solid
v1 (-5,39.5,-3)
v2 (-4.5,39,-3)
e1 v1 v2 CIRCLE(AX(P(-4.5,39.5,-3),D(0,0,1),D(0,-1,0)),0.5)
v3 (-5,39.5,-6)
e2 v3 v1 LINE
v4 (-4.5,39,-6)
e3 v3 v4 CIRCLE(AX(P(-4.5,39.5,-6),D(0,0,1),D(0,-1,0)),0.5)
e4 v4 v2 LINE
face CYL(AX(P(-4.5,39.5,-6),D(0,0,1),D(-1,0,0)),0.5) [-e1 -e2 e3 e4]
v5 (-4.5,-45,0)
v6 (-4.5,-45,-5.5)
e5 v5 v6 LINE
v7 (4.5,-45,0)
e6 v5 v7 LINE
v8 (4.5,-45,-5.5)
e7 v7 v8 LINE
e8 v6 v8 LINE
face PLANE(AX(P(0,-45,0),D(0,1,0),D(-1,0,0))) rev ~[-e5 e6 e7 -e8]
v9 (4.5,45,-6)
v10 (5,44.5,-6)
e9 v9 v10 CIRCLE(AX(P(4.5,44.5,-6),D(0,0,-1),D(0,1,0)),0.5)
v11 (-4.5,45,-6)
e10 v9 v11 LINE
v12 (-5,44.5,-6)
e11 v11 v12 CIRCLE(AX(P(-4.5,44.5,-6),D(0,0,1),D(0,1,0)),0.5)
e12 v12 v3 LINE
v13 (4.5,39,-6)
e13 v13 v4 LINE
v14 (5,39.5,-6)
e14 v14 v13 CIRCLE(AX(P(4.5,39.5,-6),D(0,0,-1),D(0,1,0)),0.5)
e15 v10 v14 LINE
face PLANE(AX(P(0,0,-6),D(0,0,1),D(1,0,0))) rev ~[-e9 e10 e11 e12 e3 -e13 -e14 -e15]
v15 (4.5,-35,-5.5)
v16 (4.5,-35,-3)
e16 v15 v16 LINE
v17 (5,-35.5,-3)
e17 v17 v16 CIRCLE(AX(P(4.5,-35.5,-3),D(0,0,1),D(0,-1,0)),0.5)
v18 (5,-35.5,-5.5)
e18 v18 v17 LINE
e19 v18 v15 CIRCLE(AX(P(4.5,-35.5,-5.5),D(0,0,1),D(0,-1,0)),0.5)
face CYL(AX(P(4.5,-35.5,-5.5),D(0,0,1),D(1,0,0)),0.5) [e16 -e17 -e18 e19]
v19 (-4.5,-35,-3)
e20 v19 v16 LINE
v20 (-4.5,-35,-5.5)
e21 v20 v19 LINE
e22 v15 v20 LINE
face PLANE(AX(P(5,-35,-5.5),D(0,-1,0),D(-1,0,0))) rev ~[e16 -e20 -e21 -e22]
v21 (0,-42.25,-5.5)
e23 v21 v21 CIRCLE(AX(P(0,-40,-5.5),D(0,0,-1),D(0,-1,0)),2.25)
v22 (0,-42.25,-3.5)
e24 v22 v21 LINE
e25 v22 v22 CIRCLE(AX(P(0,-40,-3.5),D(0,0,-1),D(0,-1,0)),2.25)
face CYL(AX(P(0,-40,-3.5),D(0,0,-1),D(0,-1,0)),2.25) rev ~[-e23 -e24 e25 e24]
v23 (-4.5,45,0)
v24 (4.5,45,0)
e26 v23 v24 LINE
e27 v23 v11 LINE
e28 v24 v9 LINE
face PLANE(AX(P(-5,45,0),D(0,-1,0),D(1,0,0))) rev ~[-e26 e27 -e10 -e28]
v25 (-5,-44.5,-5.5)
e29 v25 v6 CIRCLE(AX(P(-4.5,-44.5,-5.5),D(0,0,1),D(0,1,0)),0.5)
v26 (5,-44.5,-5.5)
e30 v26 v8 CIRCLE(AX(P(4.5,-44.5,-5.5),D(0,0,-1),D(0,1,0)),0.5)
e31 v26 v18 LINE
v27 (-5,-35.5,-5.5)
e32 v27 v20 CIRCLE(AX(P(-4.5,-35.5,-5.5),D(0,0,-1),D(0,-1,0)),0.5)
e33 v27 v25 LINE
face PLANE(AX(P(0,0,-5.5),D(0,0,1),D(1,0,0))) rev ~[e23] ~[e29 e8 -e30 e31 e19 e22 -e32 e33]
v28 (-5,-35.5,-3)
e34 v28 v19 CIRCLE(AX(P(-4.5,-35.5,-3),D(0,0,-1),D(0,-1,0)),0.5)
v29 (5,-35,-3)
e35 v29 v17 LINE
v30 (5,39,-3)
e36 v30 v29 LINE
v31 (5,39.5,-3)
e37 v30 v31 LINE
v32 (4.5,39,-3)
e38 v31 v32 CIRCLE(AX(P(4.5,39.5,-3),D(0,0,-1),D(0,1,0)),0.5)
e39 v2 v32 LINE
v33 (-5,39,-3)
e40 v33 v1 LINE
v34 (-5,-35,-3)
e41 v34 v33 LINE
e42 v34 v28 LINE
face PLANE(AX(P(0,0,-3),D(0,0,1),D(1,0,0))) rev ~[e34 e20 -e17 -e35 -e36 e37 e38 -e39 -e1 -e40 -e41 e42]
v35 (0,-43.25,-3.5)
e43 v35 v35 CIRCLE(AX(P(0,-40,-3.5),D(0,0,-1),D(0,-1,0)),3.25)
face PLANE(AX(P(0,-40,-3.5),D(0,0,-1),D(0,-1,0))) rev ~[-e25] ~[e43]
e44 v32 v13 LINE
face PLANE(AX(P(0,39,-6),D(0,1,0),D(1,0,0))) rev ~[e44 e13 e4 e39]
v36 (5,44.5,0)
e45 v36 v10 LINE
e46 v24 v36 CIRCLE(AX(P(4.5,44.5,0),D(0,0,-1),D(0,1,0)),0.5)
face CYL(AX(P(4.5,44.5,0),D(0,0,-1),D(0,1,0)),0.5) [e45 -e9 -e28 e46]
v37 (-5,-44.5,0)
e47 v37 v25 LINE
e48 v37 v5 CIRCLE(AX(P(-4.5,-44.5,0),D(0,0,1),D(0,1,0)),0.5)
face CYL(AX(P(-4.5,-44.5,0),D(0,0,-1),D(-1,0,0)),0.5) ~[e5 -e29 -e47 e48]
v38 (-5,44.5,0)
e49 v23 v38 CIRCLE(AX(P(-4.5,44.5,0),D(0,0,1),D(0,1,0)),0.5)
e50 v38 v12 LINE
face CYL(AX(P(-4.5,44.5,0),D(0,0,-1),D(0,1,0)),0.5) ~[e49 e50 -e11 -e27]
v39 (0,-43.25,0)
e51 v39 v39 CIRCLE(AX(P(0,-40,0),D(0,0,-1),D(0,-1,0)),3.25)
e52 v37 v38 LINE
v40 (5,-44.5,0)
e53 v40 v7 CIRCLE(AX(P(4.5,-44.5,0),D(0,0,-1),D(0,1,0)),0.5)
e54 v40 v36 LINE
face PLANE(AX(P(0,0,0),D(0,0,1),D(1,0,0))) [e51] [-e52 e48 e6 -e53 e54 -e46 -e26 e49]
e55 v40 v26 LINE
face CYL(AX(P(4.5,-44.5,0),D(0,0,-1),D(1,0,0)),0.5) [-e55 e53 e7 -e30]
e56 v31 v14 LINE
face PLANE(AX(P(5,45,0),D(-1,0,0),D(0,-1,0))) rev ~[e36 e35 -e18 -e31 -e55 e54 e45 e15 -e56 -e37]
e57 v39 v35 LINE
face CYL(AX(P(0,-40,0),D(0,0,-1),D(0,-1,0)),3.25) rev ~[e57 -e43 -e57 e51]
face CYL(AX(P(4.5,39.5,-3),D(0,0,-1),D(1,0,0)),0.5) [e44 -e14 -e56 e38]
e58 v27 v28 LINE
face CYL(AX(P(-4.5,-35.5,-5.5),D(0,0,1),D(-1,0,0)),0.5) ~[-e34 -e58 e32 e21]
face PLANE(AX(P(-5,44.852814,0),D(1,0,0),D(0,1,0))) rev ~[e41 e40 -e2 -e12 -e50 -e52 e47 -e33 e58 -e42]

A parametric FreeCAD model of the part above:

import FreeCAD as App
import Part
import Sketcher
from FreeCAD import Vector


def edges_at(feature, points):
    """Names of the edges that pass closest to the given points."""
    edges = feature.Shape.Edges
    near = lambda p: min(range(len(edges)), key=lambda i: edges[i].distToShape(Part.Vertex(*p))[0])
    return sorted({f"Edge{near(p) + 1}" for p in points})


def add_polygon(sketch, points):
    """Adds a closed chain of lines whose ends are joined by coincident constraints."""
    first, n = sketch.GeometryCount, len(points)
    for a, b in zip(points, points[1:] + points[:1]):
        sketch.addGeometry(Part.LineSegment(App.Vector(*a, 0), App.Vector(*b, 0)), False)
    for i in range(n):
        sketch.addConstraint(Sketcher.Constraint("Coincident", first + i, 2, first + (i + 1) % n, 1))

doc = App.newDocument("Part")
body = doc.addObject("PartDesign::Body", "Body")

# Sketch on XY plane
sketch1 = body.newObject("Sketcher::SketchObject", "Sketch")
sketch1.AttachmentSupport = (doc.getObject("XY_Plane"), [""])
sketch1.MapMode = "FlatFace"
add_polygon(sketch1, [(-5, 45), (-5, -45), (5, -45), (5, 45)])  # lines 0-3
sketch1.addConstraint([
    Sketcher.Constraint("Vertical", 0),
    Sketcher.Constraint("Horizontal", 1),
    Sketcher.Constraint("Vertical", 2),
    Sketcher.Constraint("Horizontal", 3),
    Sketcher.Constraint("Symmetric", 0, 2, 2, 2, -1, 1),
    Sketcher.Constraint("DistanceX", 1, 1, 1, 2, 10.0),
    Sketcher.Constraint("DistanceY", 0, 2, 0, 1, 90.0),
])
pad1 = body.newObject("PartDesign::Pad", "Pad")
pad1.Profile = sketch1
pad1.Length = 6
pad1.Reversed = True

# Sketch on XY plane
sketch2 = body.newObject("Sketcher::SketchObject", "Sketch001")
sketch2.AttachmentSupport = (doc.getObject("XY_Plane"), [""])
sketch2.MapMode = "FlatFace"
sketch2.AttachmentOffset = App.Placement(Vector(0, 0, -6), App.Rotation())
add_polygon(sketch2, [(-5, 39), (-5, -45), (5, -45), (5, 39)])  # lines 0-3
sketch2.addConstraint([
    Sketcher.Constraint("Vertical", 0),
    Sketcher.Constraint("Horizontal", 1),
    Sketcher.Constraint("Vertical", 2),
    Sketcher.Constraint("Horizontal", 3),
    Sketcher.Constraint("DistanceX", 1, 1, 1, 2, 10.0),
    Sketcher.Constraint("DistanceY", 0, 2, 0, 1, 84.0),
    Sketcher.Constraint("DistanceX", 0, 2, -1, 1, 5.0),
    Sketcher.Constraint("DistanceY", 0, 2, -1, 1, 45.0),
])
pocket1 = body.newObject("PartDesign::Pocket", "Pocket")
pocket1.Profile = sketch2
pocket1.Length = 0.5
pocket1.Reversed = True

# Sketch on XY plane
sketch3 = body.newObject("Sketcher::SketchObject", "Sketch002")
sketch3.AttachmentSupport = (doc.getObject("XY_Plane"), [""])
sketch3.MapMode = "FlatFace"
sketch3.AttachmentOffset = App.Placement(Vector(0, 0, -5.5), App.Rotation())
add_polygon(sketch3, [(-5, 39), (-5, -35), (5, -35), (5, 39)])  # lines 0-3
sketch3.addConstraint([
    Sketcher.Constraint("Vertical", 0),
    Sketcher.Constraint("Horizontal", 1),
    Sketcher.Constraint("Vertical", 2),
    Sketcher.Constraint("Horizontal", 3),
    Sketcher.Constraint("DistanceX", 1, 1, 1, 2, 10.0),
    Sketcher.Constraint("DistanceY", 0, 2, 0, 1, 74.0),
    Sketcher.Constraint("DistanceX", 0, 2, -1, 1, 5.0),
    Sketcher.Constraint("DistanceY", 0, 2, -1, 1, 35.0),
])
pocket2 = body.newObject("PartDesign::Pocket", "Pocket001")
pocket2.Profile = sketch3
pocket2.Length = 2.5
pocket2.Reversed = True

# Sketch on XY plane
sketch4 = body.newObject("Sketcher::SketchObject", "Sketch003")
sketch4.AttachmentSupport = (doc.getObject("XY_Plane"), [""])
sketch4.MapMode = "FlatFace"
sketch4.addGeometry(Part.Circle(Vector(0, -40, 0), Vector(0, 0, 1), 2.2), False)
sketch4.addConstraint([
    Sketcher.Constraint("PointOnObject", 0, 3, -2),
    Sketcher.Constraint("Diameter", 0, 4.5),
    Sketcher.Constraint("DistanceY", 0, 3, -1, 1, 40.0),
])
doc.recompute()
hole = body.newObject("PartDesign::Hole", "Hole")
hole.Profile = sketch4
hole.ThreadType = "None"
hole.Diameter = 4.5
hole.DepthType = "ThroughAll"
hole.HoleCutType = "Counterbore"
hole.HoleCutDiameter = 6.5
hole.HoleCutDepth = 3.5
doc.recompute()

fillet = body.newObject("PartDesign::Fillet", "Fillet")
fillet.Base = (hole, edges_at(hole, [
    (-5, 39, -4.5),
    (5, 39, -4.5),
    (-5, 45, -3),
    (5, 45, -3),
    (-5, -35, -4.25),
    (-5, -45, -2.75),
    (5, -45, -2.75),
    (5, -35, -4.25),
]))
fillet.Radius = 0.5

doc.recompute()
